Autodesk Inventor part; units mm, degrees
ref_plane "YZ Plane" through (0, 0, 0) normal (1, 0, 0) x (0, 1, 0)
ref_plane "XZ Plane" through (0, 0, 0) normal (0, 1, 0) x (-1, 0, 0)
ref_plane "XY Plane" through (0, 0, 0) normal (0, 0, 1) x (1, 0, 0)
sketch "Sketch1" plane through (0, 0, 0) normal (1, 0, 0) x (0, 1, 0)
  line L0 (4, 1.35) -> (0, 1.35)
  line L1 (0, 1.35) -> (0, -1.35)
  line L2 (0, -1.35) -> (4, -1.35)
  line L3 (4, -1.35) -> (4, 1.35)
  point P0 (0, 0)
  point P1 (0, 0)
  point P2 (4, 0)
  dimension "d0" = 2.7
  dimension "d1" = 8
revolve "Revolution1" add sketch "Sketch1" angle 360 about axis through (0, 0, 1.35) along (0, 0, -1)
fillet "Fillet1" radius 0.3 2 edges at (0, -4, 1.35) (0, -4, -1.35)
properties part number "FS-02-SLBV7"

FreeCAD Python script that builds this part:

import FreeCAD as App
import Part
import Sketcher
from FreeCAD import Vector


def edges_at(feature, points):
    """Names of the edges that pass closest to the given points."""
    edges = feature.Shape.Edges
    near = lambda p: min(range(len(edges)), key=lambda i: edges[i].distToShape(Part.Vertex(*p))[0])
    return sorted({f"Edge{near(p) + 1}" for p in points})


def add_polygon(sketch, points):
    """Adds a closed chain of lines whose ends are joined by coincident constraints."""
    first, n = sketch.GeometryCount, len(points)
    for a, b in zip(points, points[1:] + points[:1]):
        sketch.addGeometry(Part.LineSegment(App.Vector(*a, 0), App.Vector(*b, 0)), False)
    for i in range(n):
        sketch.addConstraint(Sketcher.Constraint("Coincident", first + i, 2, first + (i + 1) % n, 1))

doc = App.newDocument("Part")
body = doc.addObject("PartDesign::Body", "Body")

sketch1 = body.newObject("Sketcher::SketchObject", "Sketch")
sketch1.AttachmentSupport = (doc.getObject("YZ_Plane"), [""])
sketch1.MapMode = "FlatFace"
add_polygon(sketch1, [(4, -1.4), (4, 1.4), (0, 1.4), (0, -1.4)])
sketch1.addConstraint([
    Sketcher.Constraint("Vertical", 0),
    Sketcher.Constraint("Horizontal", 1),
    Sketcher.Constraint("Vertical", 2),
    Sketcher.Constraint("Horizontal", 3),
    Sketcher.Constraint("Symmetric", 1, 2, 2, 2, -1, 1),
    Sketcher.Constraint("DistanceY", 0, 1, 0, 2, 2.7),
    Sketcher.Constraint("DistanceX", 1, 2, 1, 1, 4.0),
])
revolution = body.newObject("PartDesign::Revolution", "Revolution")
revolution.Profile = sketch1
revolution.ReferenceAxis = (sketch1, ["V_Axis"])
revolution.Angle = 360
doc.recompute()

fillet = body.newObject("PartDesign::Fillet", "Fillet")
fillet.Base = (revolution, edges_at(revolution, [(0, -4, 1.35), (0, -4, -1.35)]))
fillet.Radius = 0.3

doc.recompute()
